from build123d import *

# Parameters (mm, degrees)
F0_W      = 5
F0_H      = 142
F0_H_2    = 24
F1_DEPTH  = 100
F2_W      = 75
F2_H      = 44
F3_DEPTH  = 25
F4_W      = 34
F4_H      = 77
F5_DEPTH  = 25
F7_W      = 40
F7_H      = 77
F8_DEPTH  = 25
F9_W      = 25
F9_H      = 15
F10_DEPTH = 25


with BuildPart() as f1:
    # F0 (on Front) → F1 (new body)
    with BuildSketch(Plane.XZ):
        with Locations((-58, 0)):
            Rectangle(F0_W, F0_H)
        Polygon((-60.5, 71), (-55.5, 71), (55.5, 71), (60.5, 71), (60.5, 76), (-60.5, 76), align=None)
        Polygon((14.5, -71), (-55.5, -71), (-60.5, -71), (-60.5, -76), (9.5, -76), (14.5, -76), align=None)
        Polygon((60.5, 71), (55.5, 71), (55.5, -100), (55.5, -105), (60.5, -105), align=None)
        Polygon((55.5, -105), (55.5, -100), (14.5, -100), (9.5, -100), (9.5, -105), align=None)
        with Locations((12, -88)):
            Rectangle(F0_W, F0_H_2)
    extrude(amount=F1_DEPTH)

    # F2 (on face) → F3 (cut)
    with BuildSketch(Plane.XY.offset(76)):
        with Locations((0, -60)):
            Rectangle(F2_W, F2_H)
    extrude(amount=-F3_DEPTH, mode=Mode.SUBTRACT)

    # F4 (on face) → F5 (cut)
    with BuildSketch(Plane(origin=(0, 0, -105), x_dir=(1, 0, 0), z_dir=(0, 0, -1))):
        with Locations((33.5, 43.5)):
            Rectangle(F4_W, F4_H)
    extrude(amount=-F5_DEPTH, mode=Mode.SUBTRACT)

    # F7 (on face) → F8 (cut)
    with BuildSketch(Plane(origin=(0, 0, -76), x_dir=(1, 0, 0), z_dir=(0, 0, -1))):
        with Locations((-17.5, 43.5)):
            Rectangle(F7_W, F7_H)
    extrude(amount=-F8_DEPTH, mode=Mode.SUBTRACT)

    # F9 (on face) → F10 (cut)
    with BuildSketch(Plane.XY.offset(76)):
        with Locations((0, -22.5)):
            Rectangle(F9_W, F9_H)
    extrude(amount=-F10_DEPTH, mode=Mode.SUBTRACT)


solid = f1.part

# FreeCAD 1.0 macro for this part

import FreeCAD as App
import Part
import Sketcher
from FreeCAD import Vector

doc = App.newDocument("Part")
body = doc.addObject("PartDesign::Body", "Body")

sketch1 = body.newObject("Sketcher::SketchObject", "Sketch")
sketch1.AttachmentSupport = (doc.getObject("XZ_Plane"), [""])
sketch1.MapMode = "FlatFace"
sketch1.addGeometry([
    Part.LineSegment(Vector(10, -105, 0), Vector(60, -105, 0)),
    Part.LineSegment(Vector(60, -105, 0), Vector(60, 76, 0)),
    Part.LineSegment(Vector(60, 76, 0), Vector(-60, 76, 0)),
    Part.LineSegment(Vector(-60, 76, 0), Vector(-60, -76, 0)),
    Part.LineSegment(Vector(-60, -76, 0), Vector(10, -76, 0)),
    Part.LineSegment(Vector(10, -76, 0), Vector(10, -105, 0)),
    Part.LineSegment(Vector(-56, -71, 0), Vector(-56, 71, 0)),
    Part.LineSegment(Vector(-56, 71, 0), Vector(56, 71, 0)),
    Part.LineSegment(Vector(56, 71, 0), Vector(56, -100, 0)),
    Part.LineSegment(Vector(56, -100, 0), Vector(14, -100, 0)),
    Part.LineSegment(Vector(14, -100, 0), Vector(14, -71, 0)),
    Part.LineSegment(Vector(14, -71, 0), Vector(-56, -71, 0)),
], False)
sketch1.addConstraint([
    Sketcher.Constraint("Coincident", 0, 2, 1, 1),
    Sketcher.Constraint("Coincident", 1, 2, 2, 1),
    Sketcher.Constraint("Coincident", 2, 2, 3, 1),
    Sketcher.Constraint("Coincident", 3, 2, 4, 1),
    Sketcher.Constraint("Coincident", 4, 2, 5, 1),
    Sketcher.Constraint("Coincident", 5, 2, 0, 1),
    Sketcher.Constraint("Coincident", 6, 2, 7, 1),
    Sketcher.Constraint("Coincident", 7, 2, 8, 1),
    Sketcher.Constraint("Coincident", 8, 2, 9, 1),
    Sketcher.Constraint("Coincident", 9, 2, 10, 1),
    Sketcher.Constraint("Coincident", 10, 2, 11, 1),
    Sketcher.Constraint("Coincident", 11, 2, 6, 1),
    Sketcher.Constraint("Horizontal", 0),
    Sketcher.Constraint("Vertical", 1),
    Sketcher.Constraint("Horizontal", 2),
    Sketcher.Constraint("Vertical", 3),
    Sketcher.Constraint("Horizontal", 4),
    Sketcher.Constraint("Vertical", 5),
    Sketcher.Constraint("Vertical", 6),
    Sketcher.Constraint("Horizontal", 7),
    Sketcher.Constraint("Vertical", 8),
    Sketcher.Constraint("Horizontal", 9),
    Sketcher.Constraint("Vertical", 10),
    Sketcher.Constraint("Horizontal", 11),
    Sketcher.Constraint("Symmetric", 1, 2, 3, 2, -1, 1),
    Sketcher.Constraint("Symmetric", 7, 2, 11, 2, -1, 1),
    Sketcher.Constraint("Equal", 4, 11),
    Sketcher.Constraint("Equal", 5, 10),
    Sketcher.Constraint("DistanceX", 0, 1, 0, 2, 51.0),
    Sketcher.Constraint("DistanceX", 2, 2, 2, 1, 121.0),
    Sketcher.Constraint("DistanceX", 7, 1, 7, 2, 111.0),
    Sketcher.Constraint("DistanceY", 1, 1, 1, 2, 181.0),
    Sketcher.Constraint("DistanceY", 3, 2, 3, 1, 152.0),
    Sketcher.Constraint("DistanceY", 6, 1, 6, 2, 142.0),
])
pad1 = body.newObject("PartDesign::Pad", "Pad")
pad1.Profile = sketch1
pad1.Length = 100

sketch2 = body.newObject("Sketcher::SketchObject", "Sketch001")
sketch2.AttachmentSupport = (doc.getObject("XY_Plane"), [""])
sketch2.MapMode = "FlatFace"
sketch2.AttachmentOffset = App.Placement(Vector(0, 0, 76), App.Rotation())
sketch2.addGeometry([
    Part.LineSegment(Vector(-38, -38, 0), Vector(-38, -82, 0)),
    Part.LineSegment(Vector(-38, -82, 0), Vector(38, -82, 0)),
    Part.LineSegment(Vector(38, -82, 0), Vector(38, -38, 0)),
    Part.LineSegment(Vector(38, -38, 0), Vector(-38, -38, 0)),
], False)
sketch2.addConstraint([
    Sketcher.Constraint("Coincident", 0, 2, 1, 1),
    Sketcher.Constraint("Coincident", 1, 2, 2, 1),
    Sketcher.Constraint("Coincident", 2, 2, 3, 1),
    Sketcher.Constraint("Coincident", 3, 2, 0, 1),
    Sketcher.Constraint("Vertical", 0),
    Sketcher.Constraint("Horizontal", 1),
    Sketcher.Constraint("Vertical", 2),
    Sketcher.Constraint("Horizontal", 3),
    Sketcher.Constraint("DistanceX", 1, 1, 1, 2, 75.0),
    Sketcher.Constraint("DistanceY", 0, 2, 0, 1, 44.0),
    Sketcher.Constraint("DistanceY", 0, 2, -1, 1, 82.0),
    Sketcher.Constraint("DistanceX", 0, 2, -1, 1, 37.5),
])
pocket1 = body.newObject("PartDesign::Pocket", "Pocket")
pocket1.Profile = sketch2
pocket1.Length = 25

sketch3 = body.newObject("Sketcher::SketchObject", "Sketch002")
sketch3.AttachmentSupport = (doc.getObject("XY_Plane"), [""])
sketch3.MapMode = "FlatFace"
sketch3.AttachmentOffset = App.Placement(Vector(0, 0, -105), App.Rotation())
sketch3.addGeometry([
    Part.LineSegment(Vector(16, -82, 0), Vector(16, -5, 0)),
    Part.LineSegment(Vector(16, -5, 0), Vector(50, -5, 0)),
    Part.LineSegment(Vector(50, -5, 0), Vector(50, -82, 0)),
    Part.LineSegment(Vector(50, -82, 0), Vector(16, -82, 0)),
], False)
sketch3.addConstraint([
    Sketcher.Constraint("Coincident", 0, 2, 1, 1),
    Sketcher.Constraint("Coincident", 1, 2, 2, 1),
    Sketcher.Constraint("Coincident", 2, 2, 3, 1),
    Sketcher.Constraint("Coincident", 3, 2, 0, 1),
    Sketcher.Constraint("Vertical", 0),
    Sketcher.Constraint("Horizontal", 1),
    Sketcher.Constraint("Vertical", 2),
    Sketcher.Constraint("Horizontal", 3),
    Sketcher.Constraint("DistanceX", 1, 1, 1, 2, 34.0),
    Sketcher.Constraint("DistanceY", 0, 1, 0, 2, 77.0),
    Sketcher.Constraint("DistanceY", 0, 2, -1, 1, 5.0),
    Sketcher.Constraint("DistanceX", -1, 1, 0, 2, 16.5),
])
pocket2 = body.newObject("PartDesign::Pocket", "Pocket001")
pocket2.Profile = sketch3
pocket2.Length = 25
pocket2.Reversed = True

sketch4 = body.newObject("Sketcher::SketchObject", "Sketch003")
sketch4.AttachmentSupport = (doc.getObject("XY_Plane"), [""])
sketch4.MapMode = "FlatFace"
sketch4.AttachmentOffset = App.Placement(Vector(0, 0, -76), App.Rotation())
sketch4.addGeometry([
    Part.LineSegment(Vector(-38, -82, 0), Vector(-38, -5, 0)),
    Part.LineSegment(Vector(-38, -5, 0), Vector(2, -5, 0)),
    Part.LineSegment(Vector(2, -5, 0), Vector(2, -82, 0)),
    Part.LineSegment(Vector(2, -82, 0), Vector(-38, -82, 0)),
], False)
sketch4.addConstraint([
    Sketcher.Constraint("Coincident", 0, 2, 1, 1),
    Sketcher.Constraint("Coincident", 1, 2, 2, 1),
    Sketcher.Constraint("Coincident", 2, 2, 3, 1),
    Sketcher.Constraint("Coincident", 3, 2, 0, 1),
    Sketcher.Constraint("Vertical", 0),
    Sketcher.Constraint("Horizontal", 1),
    Sketcher.Constraint("Vertical", 2),
    Sketcher.Constraint("Horizontal", 3),
    Sketcher.Constraint("DistanceX", 1, 1, 1, 2, 40.0),
    Sketcher.Constraint("DistanceY", 0, 1, 0, 2, 77.0),
    Sketcher.Constraint("DistanceY", 0, 2, -1, 1, 5.0),
    Sketcher.Constraint("DistanceX", 0, 2, -1, 1, 37.5),
])
pocket3 = body.newObject("PartDesign::Pocket", "Pocket002")
pocket3.Profile = sketch4
pocket3.Length = 25
pocket3.Reversed = True

sketch5 = body.newObject("Sketcher::SketchObject", "Sketch004")
sketch5.AttachmentSupport = (doc.getObject("XY_Plane"), [""])
sketch5.MapMode = "FlatFace"
sketch5.AttachmentOffset = App.Placement(Vector(0, 0, 76), App.Rotation())
sketch5.addGeometry([
    Part.LineSegment(Vector(-12, -15, 0), Vector(-12, -30, 0)),
    Part.LineSegment(Vector(-12, -30, 0), Vector(12, -30, 0)),
    Part.LineSegment(Vector(12, -30, 0), Vector(12, -15, 0)),
    Part.LineSegment(Vector(12, -15, 0), Vector(-12, -15, 0)),
], False)
sketch5.addConstraint([
    Sketcher.Constraint("Coincident", 0, 2, 1, 1),
    Sketcher.Constraint("Coincident", 1, 2, 2, 1),
    Sketcher.Constraint("Coincident", 2, 2, 3, 1),
    Sketcher.Constraint("Coincident", 3, 2, 0, 1),
    Sketcher.Constraint("Vertical", 0),
    Sketcher.Constraint("Horizontal", 1),
    Sketcher.Constraint("Vertical", 2),
    Sketcher.Constraint("Horizontal", 3),
    Sketcher.Constraint("DistanceX", 1, 1, 1, 2, 25.0),
    Sketcher.Constraint("DistanceY", 0, 2, 0, 1, 15.0),
    Sketcher.Constraint("DistanceY", 0, 2, -1, 1, 30.0),
    Sketcher.Constraint("DistanceX", 0, 2, -1, 1, 12.5),
])
pocket4 = body.newObject("PartDesign::Pocket", "Pocket003")
pocket4.Profile = sketch5
pocket4.Length = 25

doc.recompute()
